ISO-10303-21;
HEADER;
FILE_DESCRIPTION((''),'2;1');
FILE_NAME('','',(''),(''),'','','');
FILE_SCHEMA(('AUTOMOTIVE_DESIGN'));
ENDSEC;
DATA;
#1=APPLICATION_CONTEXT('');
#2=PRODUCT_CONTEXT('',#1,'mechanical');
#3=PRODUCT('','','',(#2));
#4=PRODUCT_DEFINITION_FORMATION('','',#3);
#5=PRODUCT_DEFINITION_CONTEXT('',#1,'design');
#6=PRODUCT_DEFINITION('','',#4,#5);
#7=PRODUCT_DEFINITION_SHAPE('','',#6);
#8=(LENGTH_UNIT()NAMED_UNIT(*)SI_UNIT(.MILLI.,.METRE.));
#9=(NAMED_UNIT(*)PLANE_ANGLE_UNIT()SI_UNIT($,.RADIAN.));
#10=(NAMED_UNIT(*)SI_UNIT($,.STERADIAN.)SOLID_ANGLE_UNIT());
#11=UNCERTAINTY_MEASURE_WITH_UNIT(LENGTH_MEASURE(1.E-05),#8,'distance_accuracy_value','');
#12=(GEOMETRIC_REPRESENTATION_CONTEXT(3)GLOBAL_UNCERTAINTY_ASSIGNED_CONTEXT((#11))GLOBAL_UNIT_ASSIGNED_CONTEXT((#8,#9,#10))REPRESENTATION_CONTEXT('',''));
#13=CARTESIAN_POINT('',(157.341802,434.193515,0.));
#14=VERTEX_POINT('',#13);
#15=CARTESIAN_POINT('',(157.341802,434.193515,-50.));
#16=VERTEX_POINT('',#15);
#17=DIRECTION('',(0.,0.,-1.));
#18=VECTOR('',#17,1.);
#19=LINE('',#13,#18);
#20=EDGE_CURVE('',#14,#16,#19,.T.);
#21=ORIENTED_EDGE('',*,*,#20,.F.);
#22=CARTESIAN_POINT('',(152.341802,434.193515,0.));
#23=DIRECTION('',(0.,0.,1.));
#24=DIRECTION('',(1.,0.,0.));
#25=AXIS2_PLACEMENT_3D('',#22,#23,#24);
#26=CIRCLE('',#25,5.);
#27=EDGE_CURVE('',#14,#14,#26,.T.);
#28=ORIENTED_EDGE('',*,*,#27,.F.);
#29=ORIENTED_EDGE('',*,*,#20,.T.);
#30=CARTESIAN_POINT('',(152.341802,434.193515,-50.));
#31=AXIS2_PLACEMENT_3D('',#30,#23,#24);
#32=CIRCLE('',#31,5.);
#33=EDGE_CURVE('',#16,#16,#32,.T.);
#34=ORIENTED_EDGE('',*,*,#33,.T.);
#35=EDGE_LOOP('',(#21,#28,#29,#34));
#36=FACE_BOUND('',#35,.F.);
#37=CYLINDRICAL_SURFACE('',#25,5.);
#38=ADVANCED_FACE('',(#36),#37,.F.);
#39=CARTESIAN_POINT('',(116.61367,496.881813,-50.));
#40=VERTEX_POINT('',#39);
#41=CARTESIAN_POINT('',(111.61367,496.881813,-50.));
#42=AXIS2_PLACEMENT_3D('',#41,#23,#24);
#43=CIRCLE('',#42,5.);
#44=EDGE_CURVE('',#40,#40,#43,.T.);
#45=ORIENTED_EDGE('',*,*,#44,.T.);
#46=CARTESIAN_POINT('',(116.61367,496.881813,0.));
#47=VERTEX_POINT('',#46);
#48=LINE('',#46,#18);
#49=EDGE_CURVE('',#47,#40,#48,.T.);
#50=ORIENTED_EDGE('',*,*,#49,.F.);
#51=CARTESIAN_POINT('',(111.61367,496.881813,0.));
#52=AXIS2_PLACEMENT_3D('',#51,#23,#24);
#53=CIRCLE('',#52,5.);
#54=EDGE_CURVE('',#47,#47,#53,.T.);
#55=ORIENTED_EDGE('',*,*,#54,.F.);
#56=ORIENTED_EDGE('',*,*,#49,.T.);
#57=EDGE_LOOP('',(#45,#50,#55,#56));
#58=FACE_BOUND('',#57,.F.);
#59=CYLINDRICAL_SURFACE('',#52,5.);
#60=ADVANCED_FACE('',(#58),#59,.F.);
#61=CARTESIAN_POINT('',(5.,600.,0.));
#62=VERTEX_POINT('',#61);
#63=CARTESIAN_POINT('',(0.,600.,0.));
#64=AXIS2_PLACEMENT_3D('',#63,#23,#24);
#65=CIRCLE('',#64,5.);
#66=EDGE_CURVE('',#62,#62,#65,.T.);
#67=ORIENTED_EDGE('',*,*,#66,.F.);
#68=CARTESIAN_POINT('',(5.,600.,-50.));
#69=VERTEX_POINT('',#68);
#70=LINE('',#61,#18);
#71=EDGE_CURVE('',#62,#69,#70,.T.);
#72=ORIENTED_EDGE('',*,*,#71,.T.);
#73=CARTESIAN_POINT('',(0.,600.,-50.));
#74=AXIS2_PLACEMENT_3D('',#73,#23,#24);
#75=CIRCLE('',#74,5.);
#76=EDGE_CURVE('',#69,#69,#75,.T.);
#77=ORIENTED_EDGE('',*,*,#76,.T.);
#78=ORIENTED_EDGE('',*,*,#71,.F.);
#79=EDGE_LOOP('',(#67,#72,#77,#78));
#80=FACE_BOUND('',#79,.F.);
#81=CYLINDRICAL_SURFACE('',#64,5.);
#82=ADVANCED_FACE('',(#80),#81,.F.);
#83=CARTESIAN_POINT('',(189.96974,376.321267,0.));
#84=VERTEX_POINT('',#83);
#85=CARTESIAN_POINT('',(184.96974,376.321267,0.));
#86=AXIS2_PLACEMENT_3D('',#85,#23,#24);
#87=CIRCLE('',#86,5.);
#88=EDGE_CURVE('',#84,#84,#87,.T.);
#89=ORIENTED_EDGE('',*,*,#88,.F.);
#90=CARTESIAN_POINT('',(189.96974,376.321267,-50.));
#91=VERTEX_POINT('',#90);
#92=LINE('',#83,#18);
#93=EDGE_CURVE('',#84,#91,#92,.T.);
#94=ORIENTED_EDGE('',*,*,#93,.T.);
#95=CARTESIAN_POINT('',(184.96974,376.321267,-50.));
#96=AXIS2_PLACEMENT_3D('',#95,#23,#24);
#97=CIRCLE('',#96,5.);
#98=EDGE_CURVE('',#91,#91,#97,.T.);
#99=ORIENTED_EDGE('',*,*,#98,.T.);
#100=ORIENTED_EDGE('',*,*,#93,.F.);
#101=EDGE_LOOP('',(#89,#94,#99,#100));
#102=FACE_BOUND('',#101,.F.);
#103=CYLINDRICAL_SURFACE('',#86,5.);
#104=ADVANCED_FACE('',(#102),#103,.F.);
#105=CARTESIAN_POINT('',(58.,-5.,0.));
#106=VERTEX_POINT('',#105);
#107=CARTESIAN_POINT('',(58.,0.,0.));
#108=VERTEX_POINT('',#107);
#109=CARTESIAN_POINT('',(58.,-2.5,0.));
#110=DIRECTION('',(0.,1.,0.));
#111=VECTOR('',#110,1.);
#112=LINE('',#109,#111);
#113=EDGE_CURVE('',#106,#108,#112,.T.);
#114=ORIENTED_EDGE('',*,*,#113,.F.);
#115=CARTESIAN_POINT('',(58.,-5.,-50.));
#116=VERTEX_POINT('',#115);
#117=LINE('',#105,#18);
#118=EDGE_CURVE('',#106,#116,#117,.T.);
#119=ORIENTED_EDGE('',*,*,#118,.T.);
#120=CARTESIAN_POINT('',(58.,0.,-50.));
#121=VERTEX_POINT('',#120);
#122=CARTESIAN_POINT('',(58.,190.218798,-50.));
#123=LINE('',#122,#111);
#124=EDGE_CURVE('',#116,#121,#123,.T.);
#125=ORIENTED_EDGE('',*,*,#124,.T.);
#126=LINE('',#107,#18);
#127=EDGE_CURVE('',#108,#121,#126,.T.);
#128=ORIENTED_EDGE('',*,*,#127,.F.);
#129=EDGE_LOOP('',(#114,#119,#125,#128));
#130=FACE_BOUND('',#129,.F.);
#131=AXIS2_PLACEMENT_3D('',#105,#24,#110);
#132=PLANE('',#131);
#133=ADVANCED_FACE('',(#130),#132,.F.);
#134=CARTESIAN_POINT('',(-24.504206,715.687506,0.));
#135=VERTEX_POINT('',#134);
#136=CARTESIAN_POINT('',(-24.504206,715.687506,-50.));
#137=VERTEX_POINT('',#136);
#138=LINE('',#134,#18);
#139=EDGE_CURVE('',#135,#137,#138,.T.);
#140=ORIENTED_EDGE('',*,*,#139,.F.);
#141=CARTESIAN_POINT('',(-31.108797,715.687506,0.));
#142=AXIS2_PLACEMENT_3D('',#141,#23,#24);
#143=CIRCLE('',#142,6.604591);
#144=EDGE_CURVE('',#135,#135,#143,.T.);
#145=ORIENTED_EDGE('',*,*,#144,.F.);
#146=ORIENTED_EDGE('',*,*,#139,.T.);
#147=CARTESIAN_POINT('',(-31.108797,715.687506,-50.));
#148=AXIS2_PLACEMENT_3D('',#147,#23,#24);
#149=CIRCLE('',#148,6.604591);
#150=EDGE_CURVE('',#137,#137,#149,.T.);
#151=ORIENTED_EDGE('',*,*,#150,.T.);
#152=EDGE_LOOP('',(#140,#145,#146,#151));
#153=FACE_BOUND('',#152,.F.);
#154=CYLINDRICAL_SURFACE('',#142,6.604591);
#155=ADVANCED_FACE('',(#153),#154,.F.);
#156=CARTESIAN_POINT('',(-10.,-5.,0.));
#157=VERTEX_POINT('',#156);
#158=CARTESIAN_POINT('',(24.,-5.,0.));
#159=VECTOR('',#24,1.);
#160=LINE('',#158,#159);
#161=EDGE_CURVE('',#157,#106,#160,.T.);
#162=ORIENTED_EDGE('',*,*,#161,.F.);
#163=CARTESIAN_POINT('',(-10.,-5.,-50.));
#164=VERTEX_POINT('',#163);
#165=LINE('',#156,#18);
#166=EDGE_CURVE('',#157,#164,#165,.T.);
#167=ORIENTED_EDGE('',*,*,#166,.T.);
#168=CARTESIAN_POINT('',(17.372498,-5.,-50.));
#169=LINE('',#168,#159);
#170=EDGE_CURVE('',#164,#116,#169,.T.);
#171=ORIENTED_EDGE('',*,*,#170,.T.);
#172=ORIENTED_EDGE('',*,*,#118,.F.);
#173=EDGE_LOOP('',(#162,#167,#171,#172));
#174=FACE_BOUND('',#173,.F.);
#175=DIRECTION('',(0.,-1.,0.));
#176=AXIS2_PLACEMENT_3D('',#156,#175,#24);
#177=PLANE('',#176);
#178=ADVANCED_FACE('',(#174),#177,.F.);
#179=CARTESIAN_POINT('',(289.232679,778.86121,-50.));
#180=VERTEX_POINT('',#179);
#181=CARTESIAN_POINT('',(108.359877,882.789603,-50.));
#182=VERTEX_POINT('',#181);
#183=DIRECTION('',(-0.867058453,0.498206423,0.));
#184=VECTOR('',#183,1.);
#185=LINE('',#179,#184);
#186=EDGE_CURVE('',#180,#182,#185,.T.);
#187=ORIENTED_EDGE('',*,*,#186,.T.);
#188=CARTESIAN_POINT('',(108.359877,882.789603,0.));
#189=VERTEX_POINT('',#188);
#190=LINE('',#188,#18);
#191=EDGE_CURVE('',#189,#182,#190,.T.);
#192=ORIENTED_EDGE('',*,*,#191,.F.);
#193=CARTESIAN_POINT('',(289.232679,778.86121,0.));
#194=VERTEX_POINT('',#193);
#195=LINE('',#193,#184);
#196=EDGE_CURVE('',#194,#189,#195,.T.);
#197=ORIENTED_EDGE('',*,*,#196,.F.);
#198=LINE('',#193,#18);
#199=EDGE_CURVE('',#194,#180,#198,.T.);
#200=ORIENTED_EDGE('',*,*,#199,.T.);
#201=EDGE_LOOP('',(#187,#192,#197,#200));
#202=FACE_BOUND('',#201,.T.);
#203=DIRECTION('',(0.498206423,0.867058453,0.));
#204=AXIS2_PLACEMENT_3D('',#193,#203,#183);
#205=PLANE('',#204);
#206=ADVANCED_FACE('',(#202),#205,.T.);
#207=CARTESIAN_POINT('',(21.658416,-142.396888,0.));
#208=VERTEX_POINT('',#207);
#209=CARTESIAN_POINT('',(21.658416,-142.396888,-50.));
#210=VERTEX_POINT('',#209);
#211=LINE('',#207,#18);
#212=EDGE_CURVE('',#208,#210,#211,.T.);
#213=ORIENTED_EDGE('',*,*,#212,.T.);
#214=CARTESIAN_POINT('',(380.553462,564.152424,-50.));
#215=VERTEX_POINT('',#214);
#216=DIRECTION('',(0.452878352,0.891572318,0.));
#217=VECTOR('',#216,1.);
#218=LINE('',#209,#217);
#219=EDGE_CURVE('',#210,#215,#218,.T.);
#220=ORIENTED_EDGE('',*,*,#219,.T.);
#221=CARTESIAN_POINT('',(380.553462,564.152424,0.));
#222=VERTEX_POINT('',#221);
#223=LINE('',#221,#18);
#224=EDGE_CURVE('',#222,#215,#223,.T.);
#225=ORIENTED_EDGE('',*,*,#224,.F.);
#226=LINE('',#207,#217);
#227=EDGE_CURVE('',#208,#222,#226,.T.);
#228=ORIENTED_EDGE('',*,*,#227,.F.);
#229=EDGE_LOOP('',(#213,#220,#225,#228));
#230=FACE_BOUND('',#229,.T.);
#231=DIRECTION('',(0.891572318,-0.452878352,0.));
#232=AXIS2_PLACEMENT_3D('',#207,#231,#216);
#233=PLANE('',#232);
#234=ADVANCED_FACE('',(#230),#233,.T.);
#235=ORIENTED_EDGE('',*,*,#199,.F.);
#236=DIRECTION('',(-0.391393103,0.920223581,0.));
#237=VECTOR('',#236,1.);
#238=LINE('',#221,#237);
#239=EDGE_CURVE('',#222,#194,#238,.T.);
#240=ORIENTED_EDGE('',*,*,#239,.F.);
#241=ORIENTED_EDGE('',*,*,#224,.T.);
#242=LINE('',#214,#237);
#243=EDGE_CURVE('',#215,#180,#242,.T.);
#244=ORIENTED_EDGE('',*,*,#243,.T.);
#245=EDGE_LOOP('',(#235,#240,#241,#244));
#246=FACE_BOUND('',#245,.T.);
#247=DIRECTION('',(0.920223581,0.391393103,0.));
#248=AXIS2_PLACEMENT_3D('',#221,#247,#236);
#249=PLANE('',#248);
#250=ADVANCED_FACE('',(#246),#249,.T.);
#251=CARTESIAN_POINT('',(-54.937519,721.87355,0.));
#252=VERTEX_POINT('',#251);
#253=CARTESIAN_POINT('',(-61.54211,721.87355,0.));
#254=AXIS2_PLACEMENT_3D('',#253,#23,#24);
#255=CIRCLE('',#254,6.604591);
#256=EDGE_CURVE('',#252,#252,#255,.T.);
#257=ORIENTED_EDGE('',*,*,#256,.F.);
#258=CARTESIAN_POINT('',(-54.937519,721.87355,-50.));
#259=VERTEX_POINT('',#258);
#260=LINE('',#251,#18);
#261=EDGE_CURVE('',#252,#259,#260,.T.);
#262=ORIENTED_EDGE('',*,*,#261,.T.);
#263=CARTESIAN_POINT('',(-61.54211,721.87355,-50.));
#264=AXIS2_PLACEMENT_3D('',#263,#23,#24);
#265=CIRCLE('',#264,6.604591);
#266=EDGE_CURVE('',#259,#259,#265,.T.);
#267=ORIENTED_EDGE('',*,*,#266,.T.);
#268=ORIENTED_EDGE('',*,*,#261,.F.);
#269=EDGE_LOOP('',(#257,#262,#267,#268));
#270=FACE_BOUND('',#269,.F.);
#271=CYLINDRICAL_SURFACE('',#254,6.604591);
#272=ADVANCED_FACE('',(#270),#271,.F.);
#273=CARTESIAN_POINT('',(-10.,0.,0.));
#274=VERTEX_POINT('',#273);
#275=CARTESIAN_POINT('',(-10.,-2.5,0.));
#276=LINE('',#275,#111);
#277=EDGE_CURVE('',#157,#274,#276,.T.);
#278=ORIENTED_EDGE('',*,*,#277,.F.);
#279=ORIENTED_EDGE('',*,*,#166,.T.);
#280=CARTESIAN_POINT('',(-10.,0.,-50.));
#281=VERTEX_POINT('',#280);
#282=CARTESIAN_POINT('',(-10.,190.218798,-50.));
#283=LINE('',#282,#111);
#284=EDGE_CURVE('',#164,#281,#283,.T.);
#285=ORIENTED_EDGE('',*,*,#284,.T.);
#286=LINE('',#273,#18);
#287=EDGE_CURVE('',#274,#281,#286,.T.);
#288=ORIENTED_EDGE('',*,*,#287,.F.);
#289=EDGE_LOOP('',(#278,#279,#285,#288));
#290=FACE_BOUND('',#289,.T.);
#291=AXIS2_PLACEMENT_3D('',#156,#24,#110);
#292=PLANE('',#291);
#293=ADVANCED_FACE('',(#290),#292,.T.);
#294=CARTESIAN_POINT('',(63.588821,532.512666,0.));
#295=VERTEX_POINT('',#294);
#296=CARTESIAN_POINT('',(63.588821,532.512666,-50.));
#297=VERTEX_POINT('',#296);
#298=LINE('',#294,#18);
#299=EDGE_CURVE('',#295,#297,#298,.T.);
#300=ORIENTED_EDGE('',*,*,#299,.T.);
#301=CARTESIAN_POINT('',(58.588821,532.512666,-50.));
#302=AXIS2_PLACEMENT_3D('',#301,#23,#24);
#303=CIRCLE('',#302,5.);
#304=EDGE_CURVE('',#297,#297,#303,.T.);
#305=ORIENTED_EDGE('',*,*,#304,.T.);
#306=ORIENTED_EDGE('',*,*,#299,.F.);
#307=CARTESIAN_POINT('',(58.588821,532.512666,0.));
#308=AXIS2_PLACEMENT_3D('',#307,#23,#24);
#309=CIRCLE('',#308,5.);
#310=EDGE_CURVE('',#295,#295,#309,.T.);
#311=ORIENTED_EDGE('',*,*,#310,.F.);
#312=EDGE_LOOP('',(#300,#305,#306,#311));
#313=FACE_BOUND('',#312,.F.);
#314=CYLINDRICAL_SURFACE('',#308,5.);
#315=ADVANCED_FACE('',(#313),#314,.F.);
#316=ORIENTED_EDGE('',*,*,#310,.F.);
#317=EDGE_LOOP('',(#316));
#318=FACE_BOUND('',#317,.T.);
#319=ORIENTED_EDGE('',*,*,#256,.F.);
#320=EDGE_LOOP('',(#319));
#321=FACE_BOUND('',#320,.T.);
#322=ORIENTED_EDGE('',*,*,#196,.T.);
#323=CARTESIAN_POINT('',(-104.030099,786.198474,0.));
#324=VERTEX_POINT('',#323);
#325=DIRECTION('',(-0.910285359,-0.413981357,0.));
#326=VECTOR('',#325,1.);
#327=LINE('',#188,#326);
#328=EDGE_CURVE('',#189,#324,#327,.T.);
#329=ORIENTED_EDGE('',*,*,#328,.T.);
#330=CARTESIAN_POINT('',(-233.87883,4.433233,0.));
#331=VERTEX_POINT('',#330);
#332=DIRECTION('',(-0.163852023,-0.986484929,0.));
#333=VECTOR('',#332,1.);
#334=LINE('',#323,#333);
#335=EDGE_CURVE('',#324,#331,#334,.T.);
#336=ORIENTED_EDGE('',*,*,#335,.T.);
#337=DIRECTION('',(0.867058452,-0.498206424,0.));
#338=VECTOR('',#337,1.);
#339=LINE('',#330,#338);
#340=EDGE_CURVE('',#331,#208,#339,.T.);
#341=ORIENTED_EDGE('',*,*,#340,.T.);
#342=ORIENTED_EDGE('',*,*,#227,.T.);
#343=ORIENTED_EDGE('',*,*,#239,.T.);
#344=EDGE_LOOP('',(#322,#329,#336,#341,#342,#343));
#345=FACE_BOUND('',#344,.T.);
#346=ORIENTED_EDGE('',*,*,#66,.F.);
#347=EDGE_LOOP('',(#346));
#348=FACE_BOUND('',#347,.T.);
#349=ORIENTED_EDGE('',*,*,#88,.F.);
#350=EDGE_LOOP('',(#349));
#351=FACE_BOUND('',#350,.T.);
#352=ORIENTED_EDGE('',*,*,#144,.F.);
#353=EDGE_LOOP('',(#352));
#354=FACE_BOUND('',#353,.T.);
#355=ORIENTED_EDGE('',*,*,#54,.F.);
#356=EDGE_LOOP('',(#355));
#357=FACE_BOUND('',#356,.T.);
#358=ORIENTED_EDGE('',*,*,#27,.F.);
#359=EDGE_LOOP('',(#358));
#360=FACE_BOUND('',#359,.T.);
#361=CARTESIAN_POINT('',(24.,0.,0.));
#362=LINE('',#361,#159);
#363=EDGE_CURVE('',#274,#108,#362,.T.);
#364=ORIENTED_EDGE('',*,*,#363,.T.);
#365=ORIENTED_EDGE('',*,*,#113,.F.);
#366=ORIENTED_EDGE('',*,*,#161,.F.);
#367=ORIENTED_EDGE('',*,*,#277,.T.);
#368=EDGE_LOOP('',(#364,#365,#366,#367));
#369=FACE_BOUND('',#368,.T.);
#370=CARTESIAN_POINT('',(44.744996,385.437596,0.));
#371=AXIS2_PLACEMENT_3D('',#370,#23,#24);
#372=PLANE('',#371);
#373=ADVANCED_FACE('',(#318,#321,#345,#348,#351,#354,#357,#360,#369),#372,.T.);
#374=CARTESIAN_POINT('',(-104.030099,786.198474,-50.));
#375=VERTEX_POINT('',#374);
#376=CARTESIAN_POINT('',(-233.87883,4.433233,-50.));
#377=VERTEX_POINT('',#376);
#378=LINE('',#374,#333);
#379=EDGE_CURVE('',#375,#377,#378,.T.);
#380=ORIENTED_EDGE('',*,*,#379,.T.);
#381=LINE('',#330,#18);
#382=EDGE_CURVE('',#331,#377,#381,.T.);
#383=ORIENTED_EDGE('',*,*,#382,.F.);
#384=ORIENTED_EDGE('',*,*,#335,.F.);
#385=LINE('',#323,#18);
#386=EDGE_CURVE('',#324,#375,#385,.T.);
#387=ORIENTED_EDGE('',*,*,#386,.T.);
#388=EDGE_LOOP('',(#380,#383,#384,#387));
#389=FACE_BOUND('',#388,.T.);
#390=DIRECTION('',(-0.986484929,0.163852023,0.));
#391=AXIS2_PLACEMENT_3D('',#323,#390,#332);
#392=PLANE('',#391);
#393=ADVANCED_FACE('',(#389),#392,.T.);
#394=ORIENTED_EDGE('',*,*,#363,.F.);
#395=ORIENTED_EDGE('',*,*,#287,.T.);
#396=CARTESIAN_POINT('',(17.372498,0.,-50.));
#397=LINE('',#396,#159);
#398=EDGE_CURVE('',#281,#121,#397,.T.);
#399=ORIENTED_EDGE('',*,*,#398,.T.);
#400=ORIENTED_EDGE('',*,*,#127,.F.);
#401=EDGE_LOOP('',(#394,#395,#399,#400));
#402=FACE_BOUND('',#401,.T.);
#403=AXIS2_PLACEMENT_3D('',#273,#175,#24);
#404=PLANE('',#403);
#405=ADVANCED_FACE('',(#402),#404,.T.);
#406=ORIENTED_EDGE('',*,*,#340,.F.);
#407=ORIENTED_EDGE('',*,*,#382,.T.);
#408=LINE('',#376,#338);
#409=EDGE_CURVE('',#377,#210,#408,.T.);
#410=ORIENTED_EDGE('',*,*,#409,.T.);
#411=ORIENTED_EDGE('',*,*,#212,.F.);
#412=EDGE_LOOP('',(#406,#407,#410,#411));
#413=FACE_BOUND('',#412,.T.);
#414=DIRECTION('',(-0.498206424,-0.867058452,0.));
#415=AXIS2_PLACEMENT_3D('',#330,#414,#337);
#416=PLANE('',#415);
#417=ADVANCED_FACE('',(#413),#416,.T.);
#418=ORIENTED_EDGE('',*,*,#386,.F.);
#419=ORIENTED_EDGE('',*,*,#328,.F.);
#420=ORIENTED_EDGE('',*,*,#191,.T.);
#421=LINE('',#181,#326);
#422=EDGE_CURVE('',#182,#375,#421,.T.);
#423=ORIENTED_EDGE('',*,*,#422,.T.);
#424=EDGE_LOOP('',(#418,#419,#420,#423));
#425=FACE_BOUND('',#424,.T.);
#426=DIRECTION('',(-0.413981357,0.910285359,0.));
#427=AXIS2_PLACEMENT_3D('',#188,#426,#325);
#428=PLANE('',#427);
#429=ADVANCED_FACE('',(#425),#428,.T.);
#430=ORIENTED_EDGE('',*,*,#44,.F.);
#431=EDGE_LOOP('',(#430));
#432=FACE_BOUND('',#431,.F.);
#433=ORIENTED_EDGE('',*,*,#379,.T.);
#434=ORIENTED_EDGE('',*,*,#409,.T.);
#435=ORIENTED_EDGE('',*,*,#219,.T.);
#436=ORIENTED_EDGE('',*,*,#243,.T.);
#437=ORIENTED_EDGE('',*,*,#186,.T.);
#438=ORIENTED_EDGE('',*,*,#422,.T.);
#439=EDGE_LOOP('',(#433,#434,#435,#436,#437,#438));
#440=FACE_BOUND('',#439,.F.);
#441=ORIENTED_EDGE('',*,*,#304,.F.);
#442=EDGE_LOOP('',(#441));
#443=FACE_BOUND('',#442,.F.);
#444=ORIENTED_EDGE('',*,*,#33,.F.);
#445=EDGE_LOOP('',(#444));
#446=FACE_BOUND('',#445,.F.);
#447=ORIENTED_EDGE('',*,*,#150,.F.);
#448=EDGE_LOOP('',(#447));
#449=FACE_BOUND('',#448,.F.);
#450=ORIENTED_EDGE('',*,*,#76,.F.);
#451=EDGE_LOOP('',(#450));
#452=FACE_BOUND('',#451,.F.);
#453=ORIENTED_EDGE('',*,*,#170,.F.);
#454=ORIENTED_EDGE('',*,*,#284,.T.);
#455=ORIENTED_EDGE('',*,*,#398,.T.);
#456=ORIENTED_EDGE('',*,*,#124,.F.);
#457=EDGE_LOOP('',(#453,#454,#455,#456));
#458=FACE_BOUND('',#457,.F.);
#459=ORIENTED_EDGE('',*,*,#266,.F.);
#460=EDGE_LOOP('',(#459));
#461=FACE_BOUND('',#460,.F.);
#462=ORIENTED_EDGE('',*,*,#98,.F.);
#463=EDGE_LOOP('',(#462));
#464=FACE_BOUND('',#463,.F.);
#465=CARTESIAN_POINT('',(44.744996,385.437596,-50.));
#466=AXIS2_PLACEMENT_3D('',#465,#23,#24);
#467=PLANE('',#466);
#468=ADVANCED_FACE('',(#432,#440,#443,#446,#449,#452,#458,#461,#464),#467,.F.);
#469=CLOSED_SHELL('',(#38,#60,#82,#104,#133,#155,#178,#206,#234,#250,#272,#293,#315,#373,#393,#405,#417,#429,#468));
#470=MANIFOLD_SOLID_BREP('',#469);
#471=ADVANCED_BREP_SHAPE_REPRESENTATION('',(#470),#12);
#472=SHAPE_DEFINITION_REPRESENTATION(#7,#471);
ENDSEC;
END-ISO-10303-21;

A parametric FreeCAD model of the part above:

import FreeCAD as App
import Part
import Sketcher

V = App.Vector


def add_polygon(sketch, points):
    """Adds a closed chain of lines whose ends are joined by coincident constraints."""
    first, n = sketch.GeometryCount, len(points)
    for a, b in zip(points, points[1:] + points[:1]):
        sketch.addGeometry(Part.LineSegment(App.Vector(*a, 0), App.Vector(*b, 0)), False)
    for i in range(n):
        sketch.addConstraint(Sketcher.Constraint("Coincident", first + i, 2, first + (i + 1) % n, 1))

doc = App.newDocument("Part")
body = doc.addObject("PartDesign::Body", "Body")

# Sketch on XY plane
sketch1 = body.newObject("Sketcher::SketchObject", "Sketch")
sketch1.AttachmentSupport = (doc.getObject("XY_Plane"), [""])
sketch1.MapMode = "FlatFace"
add_polygon(sketch1, [(22, -142), (381, 564), (289, 779), (108, 883), (-104, 786), (-234, 4)])  # lines 0-5
sketch1.addConstraint([
    Sketcher.Constraint("Parallel", 2, 5),
    Sketcher.Constraint("Equal", 1, 3),
    Sketcher.Constraint("Equal", 0, 4),
    Sketcher.Constraint("DistanceX", 3, 2, -1, 1, 104.030099),
    Sketcher.Constraint("DistanceY", 5, 2, 1, 2, 921.258098),
    Sketcher.Constraint("Distance", 5, 294.717438),
    Sketcher.Constraint("DistanceX", -1, 1, 1, 2, 289.232679),
    Sketcher.Constraint("DistanceY", -1, 1, 1, 2, 778.86121),
    Sketcher.Constraint("DistanceX", 4, 2, -1, 1, 233.87883),
    Sketcher.Constraint("DistanceY", 0, 2, 2, 2, 318.637179),
    Sketcher.Constraint("DistanceY", 3, 2, 2, 2, 96.591129),
    Sketcher.Constraint("DistanceX", 3, 2, 0, 2, 484.583561),
])
pad1 = body.newObject("PartDesign::Pad", "Pad")
pad1.Profile = sketch1
pad1.Length = 50
pad1.Reversed = True

# Sketch on XY plane
sketch2 = body.newObject("Sketcher::SketchObject", "Sketch001")
sketch2.AttachmentSupport = (doc.getObject("XY_Plane"), [""])
sketch2.MapMode = "FlatFace"
sketch2.addGeometry(Part.Circle(V(0, 600, 0), V(0, 0, 1), 5), False)  # 0
sketch2.addGeometry(Part.Circle(V(59, 533, 0), V(0, 0, 1), 5), False)  # 1
sketch2.addGeometry(Part.Circle(V(112, 497, 0), V(0, 0, 1), 5), False)  # 2
sketch2.addGeometry(Part.Circle(V(152, 434, 0), V(0, 0, 1), 5), False)  # 3
sketch2.addGeometry(Part.Circle(V(185, 376, 0), V(0, 0, 1), 5), False)  # 4
sketch2.addGeometry(Part.Circle(V(-31, 716, 0), V(0, 0, 1), 7), False)  # 5
sketch2.addGeometry(Part.Circle(V(-62, 722, 0), V(0, 0, 1), 7), False)  # 6
add_polygon(sketch2, [(-10, 0), (-10, -5), (58, -5), (58, 0)])  # lines 7-10
sketch2.addConstraint([
    Sketcher.Constraint("Vertical", 7),
    Sketcher.Constraint("Horizontal", 8),
    Sketcher.Constraint("Vertical", 9),
    Sketcher.Constraint("Horizontal", 10),
    Sketcher.Constraint("Equal", 0, 1),
    Sketcher.Constraint("Equal", 1, 2),
    Sketcher.Constraint("Equal", 2, 3),
    Sketcher.Constraint("Equal", 3, 4),
    Sketcher.Constraint("Equal", 5, 6),
    Sketcher.Constraint("PointOnObject", 0, 3, -2),
    Sketcher.Constraint("PointOnObject", 9, 2, -1),
    Sketcher.Constraint("Diameter", 0, 10.0),
    Sketcher.Constraint("DistanceX", 8, 1, 8, 2, 68.0),
    Sketcher.Constraint("DistanceY", 7, 2, 7, 1, 5.0),
    Sketcher.Constraint("DistanceY", -1, 1, 0, 3, 600.0),
    Sketcher.Constraint("DistanceX", 7, 2, -1, 1, 10.0),
    Sketcher.Constraint("Diameter", 5, 13.209182),
    Sketcher.Constraint("DistanceX", -1, 1, 3, 3, 152.341802),
    Sketcher.Constraint("DistanceY", 3, 3, 2, 3, 62.688298),
    Sketcher.Constraint("DistanceY", 4, 3, 1, 3, 156.191399),
    Sketcher.Constraint("DistanceX", 5, 3, 3, 3, 183.450599),
    Sketcher.Constraint("DistanceX", -1, 1, 1, 3, 58.588821),
    Sketcher.Constraint("DistanceX", -1, 1, 2, 3, 111.61367),
    Sketcher.Constraint("DistanceX", -1, 1, 4, 3, 184.96974),
    Sketcher.Constraint("DistanceX", 6, 3, -1, 1, 61.54211),
    Sketcher.Constraint("DistanceY", -1, 1, 6, 3, 721.87355),
    Sketcher.Constraint("DistanceY", 3, 3, 1, 3, 98.319151),
    Sketcher.Constraint("DistanceY", 1, 3, 5, 3, 183.17484),
    Sketcher.Constraint("DistanceY", -1, 1, 1, 3, 532.512666),
])
pocket1 = body.newObject("PartDesign::Pocket", "Pocket")
pocket1.Profile = sketch2
pocket1.Type = "ThroughAll"

doc.recompute()
